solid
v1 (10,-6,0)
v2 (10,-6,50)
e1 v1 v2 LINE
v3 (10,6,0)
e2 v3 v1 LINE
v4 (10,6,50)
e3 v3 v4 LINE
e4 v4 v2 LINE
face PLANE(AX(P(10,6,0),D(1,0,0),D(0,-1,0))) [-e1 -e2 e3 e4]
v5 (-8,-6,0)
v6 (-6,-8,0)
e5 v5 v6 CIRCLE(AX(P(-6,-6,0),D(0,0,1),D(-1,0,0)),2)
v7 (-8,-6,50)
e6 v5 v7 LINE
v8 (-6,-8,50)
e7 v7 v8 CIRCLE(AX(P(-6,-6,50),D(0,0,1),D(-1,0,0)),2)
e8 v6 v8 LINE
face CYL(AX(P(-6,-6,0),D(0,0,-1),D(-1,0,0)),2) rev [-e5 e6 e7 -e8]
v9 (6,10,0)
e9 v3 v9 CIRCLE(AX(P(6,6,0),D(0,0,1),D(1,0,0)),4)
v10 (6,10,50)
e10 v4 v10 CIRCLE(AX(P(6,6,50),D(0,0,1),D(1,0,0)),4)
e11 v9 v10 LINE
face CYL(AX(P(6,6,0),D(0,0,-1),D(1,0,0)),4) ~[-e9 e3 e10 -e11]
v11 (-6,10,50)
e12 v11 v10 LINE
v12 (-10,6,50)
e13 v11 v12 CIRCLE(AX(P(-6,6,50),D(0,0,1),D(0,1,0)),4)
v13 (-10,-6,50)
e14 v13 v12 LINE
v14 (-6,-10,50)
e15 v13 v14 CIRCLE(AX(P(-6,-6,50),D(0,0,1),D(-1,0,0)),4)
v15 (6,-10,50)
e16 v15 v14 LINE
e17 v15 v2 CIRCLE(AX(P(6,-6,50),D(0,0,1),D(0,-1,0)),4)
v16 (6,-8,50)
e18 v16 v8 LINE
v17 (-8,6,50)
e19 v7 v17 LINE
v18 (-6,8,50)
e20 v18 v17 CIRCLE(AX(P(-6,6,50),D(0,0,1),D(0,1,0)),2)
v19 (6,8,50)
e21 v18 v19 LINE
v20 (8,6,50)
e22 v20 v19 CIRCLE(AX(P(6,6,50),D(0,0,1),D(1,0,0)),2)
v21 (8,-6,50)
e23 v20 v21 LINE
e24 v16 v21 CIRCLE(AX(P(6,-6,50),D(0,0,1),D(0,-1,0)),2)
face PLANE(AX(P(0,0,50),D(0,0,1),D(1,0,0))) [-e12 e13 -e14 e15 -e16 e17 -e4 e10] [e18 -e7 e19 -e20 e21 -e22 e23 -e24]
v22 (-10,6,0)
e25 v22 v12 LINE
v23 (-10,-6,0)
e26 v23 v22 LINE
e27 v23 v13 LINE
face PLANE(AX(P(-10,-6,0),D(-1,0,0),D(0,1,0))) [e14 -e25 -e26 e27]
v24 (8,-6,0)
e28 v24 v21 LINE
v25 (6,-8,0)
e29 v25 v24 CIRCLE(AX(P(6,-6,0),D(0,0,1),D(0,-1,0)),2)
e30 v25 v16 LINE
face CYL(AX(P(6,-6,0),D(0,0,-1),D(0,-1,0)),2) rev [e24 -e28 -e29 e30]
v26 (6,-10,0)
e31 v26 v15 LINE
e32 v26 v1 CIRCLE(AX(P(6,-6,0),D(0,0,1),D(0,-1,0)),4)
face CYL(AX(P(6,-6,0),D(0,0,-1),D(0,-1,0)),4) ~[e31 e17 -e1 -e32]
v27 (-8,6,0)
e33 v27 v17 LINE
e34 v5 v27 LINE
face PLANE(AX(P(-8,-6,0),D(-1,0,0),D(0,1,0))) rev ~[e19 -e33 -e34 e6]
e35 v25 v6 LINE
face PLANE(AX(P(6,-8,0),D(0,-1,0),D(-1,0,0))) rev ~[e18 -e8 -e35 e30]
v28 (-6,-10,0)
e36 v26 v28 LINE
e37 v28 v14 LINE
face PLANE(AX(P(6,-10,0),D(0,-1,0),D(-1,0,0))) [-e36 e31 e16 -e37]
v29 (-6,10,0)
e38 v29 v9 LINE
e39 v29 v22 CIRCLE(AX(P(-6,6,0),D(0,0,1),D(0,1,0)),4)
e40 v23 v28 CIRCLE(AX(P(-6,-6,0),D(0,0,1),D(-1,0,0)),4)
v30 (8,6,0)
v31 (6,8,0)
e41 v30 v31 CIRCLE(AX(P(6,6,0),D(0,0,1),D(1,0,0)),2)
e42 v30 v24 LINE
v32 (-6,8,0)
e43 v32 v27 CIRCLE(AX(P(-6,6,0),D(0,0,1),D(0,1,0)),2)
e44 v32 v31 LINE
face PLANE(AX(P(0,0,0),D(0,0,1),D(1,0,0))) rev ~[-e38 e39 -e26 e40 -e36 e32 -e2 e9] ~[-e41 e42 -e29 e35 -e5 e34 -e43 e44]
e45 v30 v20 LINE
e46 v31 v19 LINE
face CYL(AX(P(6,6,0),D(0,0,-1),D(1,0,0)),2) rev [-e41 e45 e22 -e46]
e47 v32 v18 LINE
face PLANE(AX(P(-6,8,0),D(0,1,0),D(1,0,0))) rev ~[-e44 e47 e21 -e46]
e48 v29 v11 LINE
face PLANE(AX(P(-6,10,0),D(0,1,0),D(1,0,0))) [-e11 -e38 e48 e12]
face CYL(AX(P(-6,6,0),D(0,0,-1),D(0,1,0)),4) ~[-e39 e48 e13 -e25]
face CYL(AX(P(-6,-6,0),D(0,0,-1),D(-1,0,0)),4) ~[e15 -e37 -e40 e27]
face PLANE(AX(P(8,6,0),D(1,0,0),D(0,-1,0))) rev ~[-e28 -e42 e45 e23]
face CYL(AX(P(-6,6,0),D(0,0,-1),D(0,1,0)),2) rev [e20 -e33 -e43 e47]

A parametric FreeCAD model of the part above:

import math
import FreeCAD as App
import Part
import Sketcher
from FreeCAD import Vector
Q = App.Units.Quantity

doc = App.newDocument("Part")
body = doc.addObject("PartDesign::Body", "Body")

# Sketch on XY plane
sketch1 = body.newObject("Sketcher::SketchObject", "Sketch")
sketch1.AttachmentSupport = (doc.getObject("XY_Plane"), [""])
sketch1.MapMode = "FlatFace"
sketch1.addGeometry([
    Part.LineSegment(Vector(-10, 6, 0), Vector(-10, -6, 0)),  # 0
    Part.ArcOfCircle(Part.Circle(Vector(-6, -6, 0), Vector(0, 0, 1), 4), math.radians(180), math.radians(270)),  # 1
    Part.LineSegment(Vector(-6, -10, 0), Vector(6, -10, 0)),  # 2
    Part.ArcOfCircle(Part.Circle(Vector(6, -6, 0), Vector(0, 0, 1), 4), math.radians(-90), math.radians(0)),  # 3
    Part.LineSegment(Vector(10, -6, 0), Vector(10, 6, 0)),  # 4
    Part.ArcOfCircle(Part.Circle(Vector(6, 6, 0), Vector(0, 0, 1), 4), math.radians(0), math.radians(90)),  # 5
    Part.LineSegment(Vector(6, 10, 0), Vector(-6, 10, 0)),  # 6
    Part.ArcOfCircle(Part.Circle(Vector(-6, 6, 0), Vector(0, 0, 1), 4), math.radians(90), math.radians(180)),  # 7
    Part.ArcOfCircle(Part.Circle(Vector(-6, 6, 0), Vector(0, 0, 1), 2), math.radians(90), math.radians(180)),  # 8
    Part.LineSegment(Vector(-6, 8, 0), Vector(6, 8, 0)),  # 9
    Part.ArcOfCircle(Part.Circle(Vector(6, 6, 0), Vector(0, 0, 1), 2), math.radians(0), math.radians(90)),  # 10
    Part.LineSegment(Vector(8, 6, 0), Vector(8, -6, 0)),  # 11
    Part.ArcOfCircle(Part.Circle(Vector(6, -6, 0), Vector(0, 0, 1), 2), math.radians(-90), math.radians(0)),  # 12
    Part.LineSegment(Vector(6, -8, 0), Vector(-6, -8, 0)),  # 13
    Part.ArcOfCircle(Part.Circle(Vector(-6, -6, 0), Vector(0, 0, 1), 2), math.radians(180), math.radians(270)),  # 14
    Part.LineSegment(Vector(-8, -6, 0), Vector(-8, 6, 0)),  # 15
], False)
sketch1.addConstraint([
    Sketcher.Constraint("Tangent", 0, 2, 1, 1),
    Sketcher.Constraint("Tangent", 1, 2, 2, 1),
    Sketcher.Constraint("Tangent", 2, 2, 3, 1),
    Sketcher.Constraint("Tangent", 3, 2, 4, 1),
    Sketcher.Constraint("Tangent", 4, 2, 5, 1),
    Sketcher.Constraint("Tangent", 5, 2, 6, 1),
    Sketcher.Constraint("Tangent", 6, 2, 7, 1),
    Sketcher.Constraint("Tangent", 7, 2, 0, 1),
    Sketcher.Constraint("Tangent", 8, 1, 9, 1),
    Sketcher.Constraint("Tangent", 9, 2, 10, 2),
    Sketcher.Constraint("Tangent", 10, 1, 11, 1),
    Sketcher.Constraint("Tangent", 11, 2, 12, 2),
    Sketcher.Constraint("Tangent", 12, 1, 13, 1),
    Sketcher.Constraint("Tangent", 13, 2, 14, 2),
    Sketcher.Constraint("Tangent", 14, 1, 15, 1),
    Sketcher.Constraint("Tangent", 15, 2, 8, 2),
    Sketcher.Constraint("Vertical", 0),
    Sketcher.Constraint("Horizontal", 2),
    Sketcher.Constraint("Vertical", 4),
    Sketcher.Constraint("Horizontal", 6),
    Sketcher.Constraint("Horizontal", 9),
    Sketcher.Constraint("Vertical", 11),
    Sketcher.Constraint("Horizontal", 13),
    Sketcher.Constraint("Vertical", 15),
    Sketcher.Constraint("Coincident", 8, 3, 7, 3),
    Sketcher.Constraint("Coincident", 10, 3, 5, 3),
    Sketcher.Constraint("Coincident", 12, 3, 3, 3),
    Sketcher.Constraint("Equal", 1, 3),
    Sketcher.Constraint("Equal", 3, 5),
    Sketcher.Constraint("Equal", 5, 7),
    Sketcher.Constraint("Equal", 12, 14),
    Sketcher.Constraint("Symmetric", 1, 3, 5, 3, -1, 1),
    Sketcher.Constraint("Equal", 13, 0),
    Sketcher.Constraint("Radius", 1, Q("4 mm")),
    Sketcher.Constraint("Radius", 8, Q("2 mm")),
    Sketcher.Constraint("DistanceX", 0, 2, -1, 1, Q("10 mm")),
])
pad1 = body.newObject("PartDesign::Pad", "Pad")
pad1.Profile = sketch1
pad1.Length = 50

doc.recompute()
